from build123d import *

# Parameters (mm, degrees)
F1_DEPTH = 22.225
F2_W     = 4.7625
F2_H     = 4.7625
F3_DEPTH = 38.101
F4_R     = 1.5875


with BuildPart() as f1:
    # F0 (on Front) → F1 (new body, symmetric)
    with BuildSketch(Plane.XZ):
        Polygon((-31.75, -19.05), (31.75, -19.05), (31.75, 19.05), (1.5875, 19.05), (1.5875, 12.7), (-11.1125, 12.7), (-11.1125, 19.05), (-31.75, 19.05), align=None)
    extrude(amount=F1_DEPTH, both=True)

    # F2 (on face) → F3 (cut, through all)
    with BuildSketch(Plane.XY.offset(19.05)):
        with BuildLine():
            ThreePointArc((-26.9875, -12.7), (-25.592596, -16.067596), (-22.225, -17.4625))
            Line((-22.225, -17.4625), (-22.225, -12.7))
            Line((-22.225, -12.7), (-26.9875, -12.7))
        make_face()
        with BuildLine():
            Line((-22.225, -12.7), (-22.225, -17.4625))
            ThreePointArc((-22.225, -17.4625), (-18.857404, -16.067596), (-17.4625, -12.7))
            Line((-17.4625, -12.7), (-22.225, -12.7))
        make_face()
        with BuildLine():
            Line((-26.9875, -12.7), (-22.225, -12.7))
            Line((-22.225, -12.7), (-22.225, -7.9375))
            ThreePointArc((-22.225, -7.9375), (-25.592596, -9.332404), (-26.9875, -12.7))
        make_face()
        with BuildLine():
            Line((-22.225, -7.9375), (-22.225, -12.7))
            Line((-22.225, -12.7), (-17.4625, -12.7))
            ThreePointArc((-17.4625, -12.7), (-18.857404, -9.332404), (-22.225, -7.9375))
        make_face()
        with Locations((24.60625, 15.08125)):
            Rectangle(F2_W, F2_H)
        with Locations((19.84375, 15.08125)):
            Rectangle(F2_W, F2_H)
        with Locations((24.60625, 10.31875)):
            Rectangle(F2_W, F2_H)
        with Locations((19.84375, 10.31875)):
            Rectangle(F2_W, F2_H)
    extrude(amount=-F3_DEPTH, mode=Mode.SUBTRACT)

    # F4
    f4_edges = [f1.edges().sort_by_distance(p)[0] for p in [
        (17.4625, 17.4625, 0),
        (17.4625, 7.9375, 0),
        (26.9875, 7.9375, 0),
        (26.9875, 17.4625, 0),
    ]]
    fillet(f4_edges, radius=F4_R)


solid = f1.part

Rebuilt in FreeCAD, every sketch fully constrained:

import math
import FreeCAD as App
import Part
import Sketcher

V = App.Vector
Q = App.Units.Quantity


def edges_at(feature, points):
    """Names of the edges that pass closest to the given points."""
    edges = feature.Shape.Edges
    near = lambda p: min(range(len(edges)), key=lambda i: edges[i].distToShape(Part.Vertex(*p))[0])
    return sorted({f"Edge{near(p) + 1}" for p in points})


def add_polygon(sketch, points):
    """Adds a closed chain of lines whose ends are joined by coincident constraints."""
    first, n = sketch.GeometryCount, len(points)
    for a, b in zip(points, points[1:] + points[:1]):
        sketch.addGeometry(Part.LineSegment(App.Vector(*a, 0), App.Vector(*b, 0)), False)
    for i in range(n):
        sketch.addConstraint(Sketcher.Constraint("Coincident", first + i, 2, first + (i + 1) % n, 1))

doc = App.newDocument("Part")
body = doc.addObject("PartDesign::Body", "Body")

# Sketch on XZ plane
sketch1 = body.newObject("Sketcher::SketchObject", "Sketch")
sketch1.AttachmentSupport = (doc.getObject("XZ_Plane"), [""])
sketch1.MapMode = "FlatFace"
add_polygon(sketch1, [(-32, -19), (32, -19), (32, 19), (2, 19), (2, 13), (-11, 13), (-11, 19), (-32, 19)])  # lines 0-7
sketch1.addConstraint(Sketcher.Constraint("Horizontal", 0))
sketch1.addConstraint(Sketcher.Constraint("Vertical", 1))
sketch1.addConstraint(Sketcher.Constraint("Horizontal", 2))
sketch1.addConstraint(Sketcher.Constraint("Vertical", 3))
sketch1.addConstraint(Sketcher.Constraint("Horizontal", 4))
sketch1.addConstraint(Sketcher.Constraint("Vertical", 5))
sketch1.addConstraint(Sketcher.Constraint("Horizontal", 6))
sketch1.addConstraint(Sketcher.Constraint("Vertical", 7))
sketch1.addConstraint(Sketcher.Constraint("Symmetric", 0, 2, 6, 2, -1, 1))
sketch1.addConstraint(Sketcher.Constraint("Horizontal", 2, 2, 5, 2))
sketch1.addConstraint(Sketcher.Constraint("DistanceX", 0, 1, 0, 2, Q("2.5 in")))
sketch1.addConstraint(Sketcher.Constraint("DistanceX", 4, 2, 4, 1, Q("0.5 in")))
sketch1.addConstraint(Sketcher.Constraint("DistanceY", 1, 1, 1, 2, Q("1.5 in")))
sketch1.addConstraint(Sketcher.Constraint("DistanceY", 3, 2, 3, 1, Q("0.25 in")))
sketch1.addConstraint(Sketcher.Constraint("DistanceX", 2, 2, 2, 1, Q("1.1875 in")))
pad1 = body.newObject("PartDesign::Pad", "Pad")
pad1.Profile = sketch1
pad1.Length = Q("1.75 in")
pad1.Midplane = True

# Sketch on XY plane
sketch2 = body.newObject("Sketcher::SketchObject", "Sketch001")
sketch2.AttachmentSupport = (doc.getObject("XY_Plane"), [""])
sketch2.MapMode = "FlatFace"
sketch2.AttachmentOffset = App.Placement(V(0, 0, 0.75 * 25.4), App.Rotation())
sketch2.addGeometry(Part.ArcOfCircle(Part.Circle(V(-22.2, -12.7, 0), V(0, 0, 1), 4.8), math.radians(-180), math.radians(-90)), False)  # 0
sketch2.addGeometry(Part.ArcOfCircle(Part.Circle(V(-22.2, -12.7, 0), V(0, 0, 1), 4.8), math.radians(-90), math.radians(0)), False)  # 1
sketch2.addGeometry(Part.ArcOfCircle(Part.Circle(V(-22.2, -12.7, 0), V(0, 0, 1), 4.8), math.radians(0), math.radians(90)), False)  # 2
sketch2.addGeometry(Part.ArcOfCircle(Part.Circle(V(-22.2, -12.7, 0), V(0, 0, 1), 4.8), math.radians(90), math.radians(180)), False)  # 3
add_polygon(sketch2, [(27, 17.5), (17.5, 17.5), (17.5, 7.9), (27, 7.9)])  # lines 4-7
sketch2.addConstraint(Sketcher.Constraint("Tangent", 0, 2, 1, 1))
sketch2.addConstraint(Sketcher.Constraint("Tangent", 1, 2, 2, 1))
sketch2.addConstraint(Sketcher.Constraint("Tangent", 2, 2, 3, 1))
sketch2.addConstraint(Sketcher.Constraint("Tangent", 3, 2, 0, 1))
sketch2.addConstraint(Sketcher.Constraint("Horizontal", 4))
sketch2.addConstraint(Sketcher.Constraint("Vertical", 5))
sketch2.addConstraint(Sketcher.Constraint("Horizontal", 6))
sketch2.addConstraint(Sketcher.Constraint("Vertical", 7))
sketch2.addConstraint(Sketcher.Constraint("Equal", 0, 1))
sketch2.addConstraint(Sketcher.Constraint("Horizontal", 3, 3, 1, 2))
sketch2.addConstraint(Sketcher.Constraint("Horizontal", 1, 2, 3, 2))
sketch2.addConstraint(Sketcher.Constraint("Vertical", 3, 3, 0, 2))
sketch2.addConstraint(Sketcher.Constraint("Vertical", 0, 2, 2, 2))
sketch2.addConstraint(Sketcher.Constraint("Equal", 6, 5))
sketch2.addConstraint(Sketcher.Constraint("Radius", 0, Q("0.1875 in")))
sketch2.addConstraint(Sketcher.Constraint("DistanceY", 2, 2, 4, 2, Q("1 in")))
sketch2.addConstraint(Sketcher.Constraint("DistanceY", 0, 3, -1, 1, Q("0.5 in")))
sketch2.addConstraint(Sketcher.Constraint("DistanceX", 4, 2, 4, 1, Q("0.375 in")))
sketch2.addConstraint(Sketcher.Constraint("DistanceX", 1, 2, 6, 2, Q("1.75 in")))
sketch2.addConstraint(Sketcher.Constraint("DistanceX", 0, 3, -1, 1, Q("0.875 in")))
pocket1 = body.newObject("PartDesign::Pocket", "Pocket")
pocket1.Profile = sketch2
pocket1.Type = "ThroughAll"
doc.recompute()

fillet = body.newObject("PartDesign::Fillet", "Fillet")
fillet.Base = (pocket1, edges_at(pocket1, [
    (17.462, 17.462, 0),
    (17.462, 7.938, 0),
    (26.988, 7.938, 0),
    (26.988, 17.462, 0),
]))
fillet.Radius = Q("0.0625 in")

doc.recompute()
